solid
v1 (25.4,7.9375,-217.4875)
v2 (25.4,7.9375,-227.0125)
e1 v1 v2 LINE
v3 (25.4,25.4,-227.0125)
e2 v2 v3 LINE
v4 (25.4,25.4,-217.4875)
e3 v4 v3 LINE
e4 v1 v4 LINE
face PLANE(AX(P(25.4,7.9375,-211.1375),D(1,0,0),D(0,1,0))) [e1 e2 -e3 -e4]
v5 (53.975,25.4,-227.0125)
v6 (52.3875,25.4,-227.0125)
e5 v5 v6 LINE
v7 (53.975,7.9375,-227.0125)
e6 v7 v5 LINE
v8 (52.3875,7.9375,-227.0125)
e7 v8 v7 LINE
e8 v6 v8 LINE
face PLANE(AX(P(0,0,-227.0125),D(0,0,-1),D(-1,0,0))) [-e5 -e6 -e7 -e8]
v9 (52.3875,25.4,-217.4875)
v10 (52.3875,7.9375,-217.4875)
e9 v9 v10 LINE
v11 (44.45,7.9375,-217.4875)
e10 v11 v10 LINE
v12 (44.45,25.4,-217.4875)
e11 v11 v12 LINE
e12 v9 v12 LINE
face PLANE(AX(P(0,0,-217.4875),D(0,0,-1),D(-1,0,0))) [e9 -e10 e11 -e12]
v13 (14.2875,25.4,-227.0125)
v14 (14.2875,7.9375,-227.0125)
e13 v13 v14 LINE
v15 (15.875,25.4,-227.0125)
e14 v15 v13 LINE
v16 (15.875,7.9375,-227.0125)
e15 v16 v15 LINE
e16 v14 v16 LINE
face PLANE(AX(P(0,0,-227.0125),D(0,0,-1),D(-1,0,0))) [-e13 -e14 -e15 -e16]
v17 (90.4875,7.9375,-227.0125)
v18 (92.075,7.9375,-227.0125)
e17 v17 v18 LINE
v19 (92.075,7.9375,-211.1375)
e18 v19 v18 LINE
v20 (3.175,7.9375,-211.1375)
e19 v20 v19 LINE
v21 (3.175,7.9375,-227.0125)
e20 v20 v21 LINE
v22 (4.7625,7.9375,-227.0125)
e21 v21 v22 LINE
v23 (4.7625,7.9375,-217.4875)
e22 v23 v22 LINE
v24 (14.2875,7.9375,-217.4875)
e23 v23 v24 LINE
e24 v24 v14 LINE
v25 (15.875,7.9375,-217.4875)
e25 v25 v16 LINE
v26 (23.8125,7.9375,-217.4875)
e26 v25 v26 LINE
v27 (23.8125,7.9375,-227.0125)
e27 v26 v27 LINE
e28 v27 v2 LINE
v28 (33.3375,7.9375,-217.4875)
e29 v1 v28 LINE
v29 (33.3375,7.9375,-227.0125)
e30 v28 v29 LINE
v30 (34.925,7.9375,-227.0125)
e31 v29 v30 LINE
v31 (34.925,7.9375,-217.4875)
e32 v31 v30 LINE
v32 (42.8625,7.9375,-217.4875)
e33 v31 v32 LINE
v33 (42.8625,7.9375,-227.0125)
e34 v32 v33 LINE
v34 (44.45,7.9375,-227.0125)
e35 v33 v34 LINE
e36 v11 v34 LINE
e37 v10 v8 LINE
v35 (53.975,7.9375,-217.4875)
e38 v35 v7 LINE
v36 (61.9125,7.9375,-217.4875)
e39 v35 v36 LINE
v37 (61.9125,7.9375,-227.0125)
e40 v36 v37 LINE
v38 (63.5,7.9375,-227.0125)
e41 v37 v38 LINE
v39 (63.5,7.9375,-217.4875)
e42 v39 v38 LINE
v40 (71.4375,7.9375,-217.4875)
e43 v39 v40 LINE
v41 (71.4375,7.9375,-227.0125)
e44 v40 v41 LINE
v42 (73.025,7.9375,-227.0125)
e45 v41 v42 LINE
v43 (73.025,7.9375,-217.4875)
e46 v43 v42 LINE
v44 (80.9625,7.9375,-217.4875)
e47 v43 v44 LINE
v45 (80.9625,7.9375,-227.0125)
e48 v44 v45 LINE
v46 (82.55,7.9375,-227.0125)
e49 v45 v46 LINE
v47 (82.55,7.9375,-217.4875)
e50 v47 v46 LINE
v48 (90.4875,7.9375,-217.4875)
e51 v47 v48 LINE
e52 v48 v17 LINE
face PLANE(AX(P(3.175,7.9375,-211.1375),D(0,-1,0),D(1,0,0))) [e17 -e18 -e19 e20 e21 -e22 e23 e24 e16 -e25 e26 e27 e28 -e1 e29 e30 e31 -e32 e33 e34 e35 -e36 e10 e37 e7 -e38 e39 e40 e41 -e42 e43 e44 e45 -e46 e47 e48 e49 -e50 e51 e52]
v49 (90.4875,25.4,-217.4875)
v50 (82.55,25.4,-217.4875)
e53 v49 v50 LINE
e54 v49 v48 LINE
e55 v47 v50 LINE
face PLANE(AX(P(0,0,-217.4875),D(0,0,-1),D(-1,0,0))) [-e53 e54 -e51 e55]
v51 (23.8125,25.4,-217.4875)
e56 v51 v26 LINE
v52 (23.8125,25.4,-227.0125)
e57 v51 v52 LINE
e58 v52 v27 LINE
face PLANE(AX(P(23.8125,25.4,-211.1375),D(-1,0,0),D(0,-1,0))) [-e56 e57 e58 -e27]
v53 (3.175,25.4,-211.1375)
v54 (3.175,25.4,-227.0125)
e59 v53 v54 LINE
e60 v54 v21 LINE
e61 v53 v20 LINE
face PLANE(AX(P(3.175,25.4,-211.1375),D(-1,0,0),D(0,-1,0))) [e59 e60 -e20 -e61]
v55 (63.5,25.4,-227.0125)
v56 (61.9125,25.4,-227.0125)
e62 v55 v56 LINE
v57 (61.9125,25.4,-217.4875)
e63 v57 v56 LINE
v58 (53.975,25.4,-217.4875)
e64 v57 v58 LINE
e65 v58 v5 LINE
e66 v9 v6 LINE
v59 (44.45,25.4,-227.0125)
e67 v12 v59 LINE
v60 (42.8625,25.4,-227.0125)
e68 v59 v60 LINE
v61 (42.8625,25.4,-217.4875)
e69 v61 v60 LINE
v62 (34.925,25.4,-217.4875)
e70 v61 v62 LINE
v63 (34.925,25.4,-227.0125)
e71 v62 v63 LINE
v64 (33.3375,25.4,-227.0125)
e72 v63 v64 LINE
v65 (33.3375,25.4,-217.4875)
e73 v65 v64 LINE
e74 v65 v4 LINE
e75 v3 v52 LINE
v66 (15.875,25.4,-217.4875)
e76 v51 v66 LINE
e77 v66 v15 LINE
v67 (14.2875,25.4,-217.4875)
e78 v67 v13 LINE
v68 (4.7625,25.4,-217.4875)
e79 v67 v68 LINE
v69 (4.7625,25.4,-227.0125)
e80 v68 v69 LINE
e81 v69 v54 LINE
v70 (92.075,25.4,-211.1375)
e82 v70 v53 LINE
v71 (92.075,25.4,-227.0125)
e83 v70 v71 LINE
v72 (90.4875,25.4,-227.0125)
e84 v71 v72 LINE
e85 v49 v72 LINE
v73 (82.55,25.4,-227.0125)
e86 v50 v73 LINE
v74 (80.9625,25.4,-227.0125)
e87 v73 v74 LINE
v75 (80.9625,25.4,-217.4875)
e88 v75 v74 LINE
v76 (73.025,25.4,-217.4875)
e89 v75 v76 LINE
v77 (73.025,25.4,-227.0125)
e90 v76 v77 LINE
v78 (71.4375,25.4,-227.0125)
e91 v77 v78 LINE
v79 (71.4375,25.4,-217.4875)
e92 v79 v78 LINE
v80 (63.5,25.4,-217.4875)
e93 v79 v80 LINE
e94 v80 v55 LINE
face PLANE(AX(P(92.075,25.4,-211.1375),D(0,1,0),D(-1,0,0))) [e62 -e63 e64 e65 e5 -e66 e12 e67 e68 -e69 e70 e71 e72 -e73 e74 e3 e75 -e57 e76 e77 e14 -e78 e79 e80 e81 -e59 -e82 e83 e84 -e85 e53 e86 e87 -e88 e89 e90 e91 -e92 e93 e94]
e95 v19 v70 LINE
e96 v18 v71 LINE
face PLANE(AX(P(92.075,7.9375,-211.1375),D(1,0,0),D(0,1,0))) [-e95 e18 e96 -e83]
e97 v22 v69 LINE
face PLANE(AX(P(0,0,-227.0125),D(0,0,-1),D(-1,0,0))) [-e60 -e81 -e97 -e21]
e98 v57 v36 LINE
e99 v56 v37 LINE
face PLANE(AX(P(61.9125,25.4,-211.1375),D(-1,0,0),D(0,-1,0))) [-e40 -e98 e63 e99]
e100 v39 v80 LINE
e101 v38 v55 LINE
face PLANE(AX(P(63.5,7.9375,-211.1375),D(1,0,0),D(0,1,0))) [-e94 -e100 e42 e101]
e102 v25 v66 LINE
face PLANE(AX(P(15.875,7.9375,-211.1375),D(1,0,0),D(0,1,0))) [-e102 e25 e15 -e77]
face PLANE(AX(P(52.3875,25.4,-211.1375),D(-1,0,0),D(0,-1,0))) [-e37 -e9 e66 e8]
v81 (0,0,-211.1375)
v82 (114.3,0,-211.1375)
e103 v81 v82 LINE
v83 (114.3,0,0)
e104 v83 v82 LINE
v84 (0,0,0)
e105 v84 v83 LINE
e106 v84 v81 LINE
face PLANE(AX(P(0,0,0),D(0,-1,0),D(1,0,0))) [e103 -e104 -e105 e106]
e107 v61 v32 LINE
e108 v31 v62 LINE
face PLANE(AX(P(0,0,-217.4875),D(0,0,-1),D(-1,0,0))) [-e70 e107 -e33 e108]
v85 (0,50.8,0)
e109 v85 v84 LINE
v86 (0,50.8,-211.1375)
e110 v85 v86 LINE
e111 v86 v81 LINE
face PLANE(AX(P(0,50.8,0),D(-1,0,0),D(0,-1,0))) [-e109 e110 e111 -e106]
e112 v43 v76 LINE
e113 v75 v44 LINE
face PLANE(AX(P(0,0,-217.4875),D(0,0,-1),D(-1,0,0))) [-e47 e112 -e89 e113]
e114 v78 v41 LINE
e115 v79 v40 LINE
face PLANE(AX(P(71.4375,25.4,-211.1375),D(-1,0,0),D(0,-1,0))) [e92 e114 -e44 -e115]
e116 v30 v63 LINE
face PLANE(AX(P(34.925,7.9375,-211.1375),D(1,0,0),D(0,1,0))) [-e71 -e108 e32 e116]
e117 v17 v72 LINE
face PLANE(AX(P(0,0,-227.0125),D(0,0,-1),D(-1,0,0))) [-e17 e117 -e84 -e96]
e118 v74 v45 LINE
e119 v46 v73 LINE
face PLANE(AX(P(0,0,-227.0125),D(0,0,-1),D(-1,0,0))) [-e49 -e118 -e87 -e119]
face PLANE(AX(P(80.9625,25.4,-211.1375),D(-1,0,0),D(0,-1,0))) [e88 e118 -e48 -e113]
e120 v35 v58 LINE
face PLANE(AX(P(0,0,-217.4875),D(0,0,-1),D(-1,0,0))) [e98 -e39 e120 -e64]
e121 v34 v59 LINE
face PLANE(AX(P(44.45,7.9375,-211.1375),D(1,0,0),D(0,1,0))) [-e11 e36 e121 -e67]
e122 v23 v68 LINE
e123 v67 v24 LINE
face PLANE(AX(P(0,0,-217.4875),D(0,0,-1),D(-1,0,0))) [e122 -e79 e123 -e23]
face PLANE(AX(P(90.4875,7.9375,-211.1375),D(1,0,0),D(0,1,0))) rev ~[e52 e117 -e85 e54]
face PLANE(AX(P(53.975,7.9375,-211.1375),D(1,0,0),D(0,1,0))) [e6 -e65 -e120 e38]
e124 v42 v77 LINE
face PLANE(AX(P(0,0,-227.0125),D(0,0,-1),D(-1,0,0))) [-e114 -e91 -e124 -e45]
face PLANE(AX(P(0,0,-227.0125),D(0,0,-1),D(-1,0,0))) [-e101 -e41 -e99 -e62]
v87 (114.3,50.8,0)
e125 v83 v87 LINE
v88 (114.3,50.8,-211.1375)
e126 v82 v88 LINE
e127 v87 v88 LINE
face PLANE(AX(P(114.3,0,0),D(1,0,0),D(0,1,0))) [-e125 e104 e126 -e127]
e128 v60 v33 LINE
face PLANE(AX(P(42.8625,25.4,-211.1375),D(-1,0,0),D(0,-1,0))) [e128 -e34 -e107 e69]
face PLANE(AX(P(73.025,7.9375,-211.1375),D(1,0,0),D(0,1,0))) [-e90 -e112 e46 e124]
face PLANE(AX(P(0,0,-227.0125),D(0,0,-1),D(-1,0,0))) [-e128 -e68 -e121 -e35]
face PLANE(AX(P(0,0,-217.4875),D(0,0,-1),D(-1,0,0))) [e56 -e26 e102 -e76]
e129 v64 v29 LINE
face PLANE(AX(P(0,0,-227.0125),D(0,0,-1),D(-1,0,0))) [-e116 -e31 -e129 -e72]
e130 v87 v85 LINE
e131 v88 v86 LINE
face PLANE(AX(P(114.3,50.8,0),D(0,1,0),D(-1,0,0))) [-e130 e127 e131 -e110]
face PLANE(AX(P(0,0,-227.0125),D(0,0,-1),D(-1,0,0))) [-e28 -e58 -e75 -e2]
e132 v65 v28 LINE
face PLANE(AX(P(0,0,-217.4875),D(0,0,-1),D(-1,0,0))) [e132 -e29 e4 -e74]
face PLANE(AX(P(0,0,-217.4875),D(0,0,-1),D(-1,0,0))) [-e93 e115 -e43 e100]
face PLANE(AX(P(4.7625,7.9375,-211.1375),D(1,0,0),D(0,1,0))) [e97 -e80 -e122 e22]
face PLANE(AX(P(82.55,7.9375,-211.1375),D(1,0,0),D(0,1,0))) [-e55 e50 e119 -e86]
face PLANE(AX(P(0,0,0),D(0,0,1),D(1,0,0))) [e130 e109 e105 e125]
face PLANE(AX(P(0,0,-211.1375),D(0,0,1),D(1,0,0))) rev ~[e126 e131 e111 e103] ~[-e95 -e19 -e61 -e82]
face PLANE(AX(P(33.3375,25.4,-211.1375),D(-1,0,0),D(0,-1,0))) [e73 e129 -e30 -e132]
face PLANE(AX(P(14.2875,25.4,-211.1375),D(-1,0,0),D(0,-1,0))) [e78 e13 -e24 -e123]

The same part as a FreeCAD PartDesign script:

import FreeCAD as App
import Part
import Sketcher

V = App.Vector
Q = App.Units.Quantity


def add_polygon(sketch, points):
    """Adds a closed chain of lines whose ends are joined by coincident constraints."""
    first, n = sketch.GeometryCount, len(points)
    for a, b in zip(points, points[1:] + points[:1]):
        sketch.addGeometry(Part.LineSegment(App.Vector(*a, 0), App.Vector(*b, 0)), False)
    for i in range(n):
        sketch.addConstraint(Sketcher.Constraint("Coincident", first + i, 2, first + (i + 1) % n, 1))

doc = App.newDocument("Part")
body = doc.addObject("PartDesign::Body", "Body")

# Sketch on XY plane
sketch1 = doc.addObject("Sketcher::SketchObject", "Sketch")
body.addObject(sketch1)
sketch1.AttachmentSupport = (doc.XY_Plane, [""])
sketch1.MapMode = "FlatFace"
add_polygon(sketch1, [(0, 51), (0, 0), (114, 0), (114, 51)])  # lines 0-3
sketch1.addConstraint([
    Sketcher.Constraint("Vertical", 0),
    Sketcher.Constraint("Horizontal", 1),
    Sketcher.Constraint("Vertical", 2),
    Sketcher.Constraint("Horizontal", 3),
    Sketcher.Constraint("Coincident", 0, 2, -1, 1),
    Sketcher.Constraint("DistanceY", 0, 2, 0, 1, Q("2 in")),
    Sketcher.Constraint("DistanceX", 1, 1, 1, 2, Q("4.5 in")),
])
pad1 = doc.addObject("PartDesign::Pad", "Pad")
body.addObject(pad1)
pad1.Profile = sketch1
pad1.Length = Q("8.3125 in")
pad1.Reversed = True

# Sketch on XY plane
sketch2 = doc.addObject("Sketcher::SketchObject", "Sketch001")
body.addObject(sketch2)
sketch2.AttachmentSupport = (doc.XY_Plane, [""])
sketch2.MapMode = "FlatFace"
sketch2.AttachmentOffset = App.Placement(V(0, 0, -8.3125 * 25.4), App.Rotation())
add_polygon(sketch2, [(4.8, 7.9), (3.2, 7.9), (3.2, 25.4), (4.8, 25.4)])  # lines 0-3
add_polygon(sketch2, [(15.9, 7.9), (14.3, 7.9), (14.3, 25.4), (15.9, 25.4)])  # lines 4-7
add_polygon(sketch2, [(25.4, 7.9), (23.8, 7.9), (23.8, 25.4), (25.4, 25.4)])  # lines 8-11
add_polygon(sketch2, [(34.9, 7.9), (33.3, 7.9), (33.3, 25.4), (34.9, 25.4)])  # lines 12-15
add_polygon(sketch2, [(44.5, 7.9), (42.9, 7.9), (42.9, 25.4), (44.5, 25.4)])  # lines 16-19
add_polygon(sketch2, [(54, 7.9), (52.4, 7.9), (52.4, 25.4), (54, 25.4)])  # lines 20-23
add_polygon(sketch2, [(63.5, 7.9), (61.9, 7.9), (61.9, 25.4), (63.5, 25.4)])  # lines 24-27
add_polygon(sketch2, [(73, 7.9), (71.4, 7.9), (71.4, 25.4), (73, 25.4)])  # lines 28-31
add_polygon(sketch2, [(82.5, 7.9), (81, 7.9), (81, 25.4), (82.5, 25.4)])  # lines 32-35
add_polygon(sketch2, [(92.1, 7.9), (90.5, 7.9), (90.5, 25.4), (92.1, 25.4)])  # lines 36-39
sketch2.addConstraint([
    Sketcher.Constraint("Horizontal", 0),
    Sketcher.Constraint("Vertical", 1),
    Sketcher.Constraint("Horizontal", 2),
    Sketcher.Constraint("Vertical", 3),
    Sketcher.Constraint("Horizontal", 4),
    Sketcher.Constraint("Vertical", 5),
    Sketcher.Constraint("Horizontal", 6),
    Sketcher.Constraint("Vertical", 7),
    Sketcher.Constraint("Horizontal", 8),
    Sketcher.Constraint("Vertical", 9),
    Sketcher.Constraint("Horizontal", 10),
    Sketcher.Constraint("Vertical", 11),
    Sketcher.Constraint("Horizontal", 12),
    Sketcher.Constraint("Vertical", 13),
    Sketcher.Constraint("Horizontal", 14),
    Sketcher.Constraint("Vertical", 15),
    Sketcher.Constraint("Horizontal", 16),
    Sketcher.Constraint("Vertical", 17),
    Sketcher.Constraint("Horizontal", 18),
    Sketcher.Constraint("Vertical", 19),
    Sketcher.Constraint("Horizontal", 20),
    Sketcher.Constraint("Vertical", 21),
    Sketcher.Constraint("Horizontal", 22),
    Sketcher.Constraint("Vertical", 23),
    Sketcher.Constraint("Horizontal", 24),
    Sketcher.Constraint("Vertical", 25),
    Sketcher.Constraint("Horizontal", 26),
    Sketcher.Constraint("Vertical", 27),
    Sketcher.Constraint("Horizontal", 28),
    Sketcher.Constraint("Vertical", 29),
    Sketcher.Constraint("Horizontal", 30),
    Sketcher.Constraint("Vertical", 31),
    Sketcher.Constraint("Horizontal", 32),
    Sketcher.Constraint("Vertical", 33),
    Sketcher.Constraint("Horizontal", 34),
    Sketcher.Constraint("Vertical", 35),
    Sketcher.Constraint("Horizontal", 36),
    Sketcher.Constraint("Vertical", 37),
    Sketcher.Constraint("Horizontal", 38),
    Sketcher.Constraint("Vertical", 39),
    Sketcher.Constraint("Horizontal", 3, 2, 4, 2),
    Sketcher.Constraint("Horizontal", 2, 2, 5, 2),
    Sketcher.Constraint("Horizontal", 7, 2, 8, 2),
    Sketcher.Constraint("Horizontal", 6, 2, 9, 2),
    Sketcher.Constraint("Horizontal", 11, 2, 12, 2),
    Sketcher.Constraint("Horizontal", 10, 2, 13, 2),
    Sketcher.Constraint("Horizontal", 15, 2, 16, 2),
    Sketcher.Constraint("Horizontal", 14, 2, 17, 2),
    Sketcher.Constraint("Horizontal", 19, 2, 20, 2),
    Sketcher.Constraint("Horizontal", 18, 2, 21, 2),
    Sketcher.Constraint("Horizontal", 23, 2, 24, 2),
    Sketcher.Constraint("Horizontal", 22, 2, 25, 2),
    Sketcher.Constraint("Horizontal", 27, 2, 28, 2),
    Sketcher.Constraint("Horizontal", 26, 2, 29, 2),
    Sketcher.Constraint("Horizontal", 31, 2, 32, 2),
    Sketcher.Constraint("Horizontal", 30, 2, 33, 2),
    Sketcher.Constraint("Horizontal", 35, 2, 36, 2),
    Sketcher.Constraint("Horizontal", 34, 2, 37, 2),
    Sketcher.Constraint("Equal", 2, 4),
    Sketcher.Constraint("Equal", 6, 8),
    Sketcher.Constraint("Equal", 10, 12),
    Sketcher.Constraint("Equal", 14, 16),
    Sketcher.Constraint("Equal", 18, 20),
    Sketcher.Constraint("Equal", 22, 24),
    Sketcher.Constraint("Equal", 26, 28),
    Sketcher.Constraint("Equal", 30, 32),
    Sketcher.Constraint("Equal", 34, 36),
    Sketcher.Constraint("DistanceY", -1, 1, 1, 2, Q("1 in")),
    Sketcher.Constraint("DistanceX", -1, 1, 10, 2, Q("1 in")),
    Sketcher.Constraint("DistanceX", 0, 2, 0, 1, Q("0.0625 in")),
    Sketcher.Constraint("DistanceX", -1, 1, 0, 2, Q("0.125 in")),
    Sketcher.Constraint("DistanceY", -1, 1, 0, 2, Q("0.3125 in")),
    Sketcher.Constraint("DistanceX", 7, 2, 8, 2, Q("0.3125 in")),
    Sketcher.Constraint("DistanceX", 11, 2, 12, 2, Q("0.3125 in")),
    Sketcher.Constraint("DistanceX", 15, 2, 16, 2, Q("0.3125 in")),
    Sketcher.Constraint("DistanceX", 19, 2, 20, 2, Q("0.3125 in")),
    Sketcher.Constraint("DistanceX", 23, 2, 24, 2, Q("0.3125 in")),
    Sketcher.Constraint("DistanceX", 27, 2, 28, 2, Q("0.3125 in")),
    Sketcher.Constraint("DistanceX", 31, 2, 32, 2, Q("0.3125 in")),
    Sketcher.Constraint("DistanceX", 35, 2, 36, 2, Q("0.3125 in")),
])
pad2 = doc.addObject("PartDesign::Pad", "Pad001")
body.addObject(pad2)
pad2.Profile = sketch2
pad2.Length = Q("0.625 in")
pad2.Reversed = True

# Sketch on XY plane
sketch3 = doc.addObject("Sketcher::SketchObject", "Sketch002")
body.addObject(sketch3)
sketch3.AttachmentSupport = (doc.XY_Plane, [""])
sketch3.MapMode = "FlatFace"
sketch3.AttachmentOffset = App.Placement(V(0, 0, -8.3125 * 25.4), App.Rotation())
add_polygon(sketch3, [(71, 25), (71, 8), (64, 8), (64, 25)])  # lines 0-3
add_polygon(sketch3, [(81, 8), (73, 8), (73, 25), (81, 25)])  # lines 4-7
add_polygon(sketch3, [(62, 25), (62, 8), (54, 8), (54, 25)])  # lines 8-11
add_polygon(sketch3, [(90, 8), (83, 8), (83, 25), (90, 25)])  # lines 12-15
add_polygon(sketch3, [(52, 25), (52, 8), (44, 8), (44, 25)])  # lines 16-19
add_polygon(sketch3, [(43, 25), (43, 8), (35, 8), (35, 25)])  # lines 20-23
add_polygon(sketch3, [(33, 25), (33, 8), (25, 8), (25, 25)])  # lines 24-27
add_polygon(sketch3, [(24, 25), (24, 8), (16, 8), (16, 25)])  # lines 28-31
add_polygon(sketch3, [(14, 25), (14, 8), (5, 8), (5, 25)])  # lines 32-35
sketch3.addConstraint([
    Sketcher.Constraint("Vertical", 0),
    Sketcher.Constraint("Horizontal", 1),
    Sketcher.Constraint("Vertical", 2),
    Sketcher.Constraint("Horizontal", 3),
    Sketcher.Constraint("Horizontal", 4),
    Sketcher.Constraint("Vertical", 5),
    Sketcher.Constraint("Horizontal", 6),
    Sketcher.Constraint("Vertical", 7),
    Sketcher.Constraint("Vertical", 8),
    Sketcher.Constraint("Horizontal", 9),
    Sketcher.Constraint("Vertical", 10),
    Sketcher.Constraint("Horizontal", 11),
    Sketcher.Constraint("Horizontal", 12),
    Sketcher.Constraint("Vertical", 13),
    Sketcher.Constraint("Horizontal", 14),
    Sketcher.Constraint("Vertical", 15),
    Sketcher.Constraint("Vertical", 16),
    Sketcher.Constraint("Horizontal", 17),
    Sketcher.Constraint("Vertical", 18),
    Sketcher.Constraint("Horizontal", 19),
    Sketcher.Constraint("Vertical", 20),
    Sketcher.Constraint("Horizontal", 21),
    Sketcher.Constraint("Vertical", 22),
    Sketcher.Constraint("Horizontal", 23),
    Sketcher.Constraint("Vertical", 24),
    Sketcher.Constraint("Horizontal", 25),
    Sketcher.Constraint("Vertical", 26),
    Sketcher.Constraint("Horizontal", 27),
    Sketcher.Constraint("Vertical", 28),
    Sketcher.Constraint("Horizontal", 29),
    Sketcher.Constraint("Vertical", 30),
    Sketcher.Constraint("Horizontal", 31),
    Sketcher.Constraint("Vertical", 32),
    Sketcher.Constraint("Horizontal", 33),
    Sketcher.Constraint("Vertical", 34),
    Sketcher.Constraint("Horizontal", 35),
    Sketcher.Constraint("Horizontal", 1, 2, 4, 2),
    Sketcher.Constraint("Horizontal", 3, 2, 5, 2),
    Sketcher.Constraint("Horizontal", 7, 2, 8, 2),
    Sketcher.Constraint("Horizontal", 6, 2, 10, 2),
    Sketcher.Constraint("Horizontal", 9, 2, 12, 2),
    Sketcher.Constraint("Horizontal", 11, 2, 13, 2),
    Sketcher.Constraint("Horizontal", 15, 2, 16, 2),
    Sketcher.Constraint("Horizontal", 14, 2, 18, 2),
    Sketcher.Constraint("Horizontal", 17, 2, 20, 2),
    Sketcher.Constraint("Horizontal", 19, 2, 22, 2),
    Sketcher.Constraint("Horizontal", 21, 2, 24, 2),
    Sketcher.Constraint("Horizontal", 23, 2, 26, 2),
    Sketcher.Constraint("Horizontal", 25, 2, 28, 2),
    Sketcher.Constraint("Horizontal", 27, 2, 30, 2),
    Sketcher.Constraint("Horizontal", 29, 2, 32, 2),
    Sketcher.Constraint("Horizontal", 31, 2, 34, 2),
    Sketcher.Constraint("Equal", 3, 4),
    Sketcher.Constraint("Equal", 6, 9),
    Sketcher.Constraint("Equal", 11, 12),
    Sketcher.Constraint("Equal", 14, 17),
    Sketcher.Constraint("Equal", 19, 21),
    Sketcher.Constraint("Equal", 23, 25),
    Sketcher.Constraint("Equal", 27, 29),
    Sketcher.Constraint("DistanceY", -1, 1, 2, 2, Q("1 in")),
    Sketcher.Constraint("DistanceX", -1, 1, 25, 2, Q("1 in")),
    Sketcher.Constraint("DistanceX", -1, 1, 1, 2, Q("2.5 in")),
    Sketcher.Constraint("DistanceX", 1, 2, 1, 1, Q("0.3125 in")),
    Sketcher.Constraint("DistanceX", 33, 2, 33, 1, Q("0.375 in")),
    Sketcher.Constraint("DistanceY", 0, 2, 0, 1, Q("0.6875 in")),
    Sketcher.Constraint("DistanceX", -1, 1, 12, 2, Q("3.25 in")),
    Sketcher.Constraint("DistanceX", -1, 1, 17, 2, Q("1.75 in")),
    Sketcher.Constraint("DistanceX", 8, 2, 7, 2, Q("0.75 in")),
    Sketcher.Constraint("DistanceX", 20, 2, 8, 2, Q("0.75 in")),
    Sketcher.Constraint("DistanceX", 28, 2, 20, 2, Q("0.75 in")),
    Sketcher.Constraint("DistanceX", 32, 2, 24, 2, Q("0.75 in")),
    Sketcher.Constraint("DistanceX", 33, 2, 28, 2, Q("0.75 in")),
])
pad3 = doc.addObject("PartDesign::Pad", "Pad002")
body.addObject(pad3)
pad3.Profile = sketch3
pad3.Length = Q("0.25 in")
pad3.Reversed = True

doc.recompute()
